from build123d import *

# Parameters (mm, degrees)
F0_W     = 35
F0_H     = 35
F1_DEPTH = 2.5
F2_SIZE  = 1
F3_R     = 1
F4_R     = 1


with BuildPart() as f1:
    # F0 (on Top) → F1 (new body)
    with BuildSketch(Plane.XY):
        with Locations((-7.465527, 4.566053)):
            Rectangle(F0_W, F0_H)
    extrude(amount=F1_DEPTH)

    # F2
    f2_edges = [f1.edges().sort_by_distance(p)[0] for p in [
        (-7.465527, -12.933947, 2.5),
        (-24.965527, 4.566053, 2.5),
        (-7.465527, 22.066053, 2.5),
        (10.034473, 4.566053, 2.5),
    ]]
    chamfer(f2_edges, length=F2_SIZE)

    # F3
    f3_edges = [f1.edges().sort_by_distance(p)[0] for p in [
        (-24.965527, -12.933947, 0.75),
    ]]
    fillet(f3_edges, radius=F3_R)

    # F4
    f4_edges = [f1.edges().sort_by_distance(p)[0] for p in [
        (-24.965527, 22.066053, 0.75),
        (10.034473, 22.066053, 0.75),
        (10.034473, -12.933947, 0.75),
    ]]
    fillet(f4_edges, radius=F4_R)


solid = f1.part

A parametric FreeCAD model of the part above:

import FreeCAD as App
import Part
import Sketcher
Q = App.Units.Quantity


def edges_at(feature, points):
    """Names of the edges that pass closest to the given points."""
    edges = feature.Shape.Edges
    near = lambda p: min(range(len(edges)), key=lambda i: edges[i].distToShape(Part.Vertex(*p))[0])
    return sorted({f"Edge{near(p) + 1}" for p in points})


def add_polygon(sketch, points):
    """Adds a closed chain of lines whose ends are joined by coincident constraints."""
    first, n = sketch.GeometryCount, len(points)
    for a, b in zip(points, points[1:] + points[:1]):
        sketch.addGeometry(Part.LineSegment(App.Vector(*a, 0), App.Vector(*b, 0)), False)
    for i in range(n):
        sketch.addConstraint(Sketcher.Constraint("Coincident", first + i, 2, first + (i + 1) % n, 1))

doc = App.newDocument("Part")
params = doc.addObject("Spreadsheet::Sheet", "Params")
for row, (alias, value) in enumerate([
    ("sketch1_width", "35 mm"),
    ("pad1_length", "2.5 mm"),
    ("chamfer_size", "1 mm"),
    ("fillet_radius", "1 mm"),
    ("fillet2_radius", "1 mm"),
], start=1):
    params.set(f"A{row}", alias)
    params.set(f"B{row}", "=" + value)
    params.setAlias(f"B{row}", alias)

body = doc.addObject("PartDesign::Body", "Body")

sketch1 = body.newObject("Sketcher::SketchObject", "Sketch")
sketch1.AttachmentSupport = (doc.getObject("XY_Plane"), [""])
sketch1.MapMode = "FlatFace"
add_polygon(sketch1, [(-24.965527, 22.066053), (-24.965527, -12.933947), (10.034473, -12.933947), (10.034473, 22.066053)])
sketch1.addConstraint(Sketcher.Constraint("Vertical", 0))
sketch1.addConstraint(Sketcher.Constraint("Horizontal", 1))
sketch1.addConstraint(Sketcher.Constraint("Vertical", 2))
sketch1.addConstraint(Sketcher.Constraint("Horizontal", 3))
sketch1.addConstraint(Sketcher.Constraint("Equal", 3, 0))
sketch1.addConstraint(Sketcher.Constraint("DistanceX", 1, 1, 1, 2, Q("35 mm")))
sketch1.addConstraint(Sketcher.Constraint("DistanceX", 0, 2, -1, 1, Q("24.965527 mm")))
sketch1.addConstraint(Sketcher.Constraint("DistanceY", 0, 2, -1, 1, Q("12.933947 mm")))
sketch1.setExpression("Constraints[9]", "Params.sketch1_width")
pad1 = body.newObject("PartDesign::Pad", "Pad")
pad1.Profile = sketch1
pad1.setExpression("Length", "Params.pad1_length")
doc.recompute()

chamfer = body.newObject("PartDesign::Chamfer", "Chamfer")
chamfer.Base = (pad1, edges_at(pad1, [
    (-7.466, -12.934, 2.5),
    (-24.966, 4.566, 2.5),
    (-7.466, 22.066, 2.5),
    (10.034, 4.566, 2.5),
]))
chamfer.setExpression("Size", "Params.chamfer_size")
doc.recompute()

fillet = body.newObject("PartDesign::Fillet", "Fillet")
fillet.Base = (chamfer, edges_at(chamfer, [(-24.966, -12.934, 0.75)]))
fillet.setExpression("Radius", "Params.fillet_radius")
doc.recompute()

fillet2 = body.newObject("PartDesign::Fillet", "Fillet001")
fillet2.Base = (fillet, edges_at(fillet, [(-24.966, 22.066, 0.75), (10.034, 22.066, 0.75), (10.034, -12.934, 0.75)]))
fillet2.setExpression("Radius", "Params.fillet2_radius")

doc.recompute()
